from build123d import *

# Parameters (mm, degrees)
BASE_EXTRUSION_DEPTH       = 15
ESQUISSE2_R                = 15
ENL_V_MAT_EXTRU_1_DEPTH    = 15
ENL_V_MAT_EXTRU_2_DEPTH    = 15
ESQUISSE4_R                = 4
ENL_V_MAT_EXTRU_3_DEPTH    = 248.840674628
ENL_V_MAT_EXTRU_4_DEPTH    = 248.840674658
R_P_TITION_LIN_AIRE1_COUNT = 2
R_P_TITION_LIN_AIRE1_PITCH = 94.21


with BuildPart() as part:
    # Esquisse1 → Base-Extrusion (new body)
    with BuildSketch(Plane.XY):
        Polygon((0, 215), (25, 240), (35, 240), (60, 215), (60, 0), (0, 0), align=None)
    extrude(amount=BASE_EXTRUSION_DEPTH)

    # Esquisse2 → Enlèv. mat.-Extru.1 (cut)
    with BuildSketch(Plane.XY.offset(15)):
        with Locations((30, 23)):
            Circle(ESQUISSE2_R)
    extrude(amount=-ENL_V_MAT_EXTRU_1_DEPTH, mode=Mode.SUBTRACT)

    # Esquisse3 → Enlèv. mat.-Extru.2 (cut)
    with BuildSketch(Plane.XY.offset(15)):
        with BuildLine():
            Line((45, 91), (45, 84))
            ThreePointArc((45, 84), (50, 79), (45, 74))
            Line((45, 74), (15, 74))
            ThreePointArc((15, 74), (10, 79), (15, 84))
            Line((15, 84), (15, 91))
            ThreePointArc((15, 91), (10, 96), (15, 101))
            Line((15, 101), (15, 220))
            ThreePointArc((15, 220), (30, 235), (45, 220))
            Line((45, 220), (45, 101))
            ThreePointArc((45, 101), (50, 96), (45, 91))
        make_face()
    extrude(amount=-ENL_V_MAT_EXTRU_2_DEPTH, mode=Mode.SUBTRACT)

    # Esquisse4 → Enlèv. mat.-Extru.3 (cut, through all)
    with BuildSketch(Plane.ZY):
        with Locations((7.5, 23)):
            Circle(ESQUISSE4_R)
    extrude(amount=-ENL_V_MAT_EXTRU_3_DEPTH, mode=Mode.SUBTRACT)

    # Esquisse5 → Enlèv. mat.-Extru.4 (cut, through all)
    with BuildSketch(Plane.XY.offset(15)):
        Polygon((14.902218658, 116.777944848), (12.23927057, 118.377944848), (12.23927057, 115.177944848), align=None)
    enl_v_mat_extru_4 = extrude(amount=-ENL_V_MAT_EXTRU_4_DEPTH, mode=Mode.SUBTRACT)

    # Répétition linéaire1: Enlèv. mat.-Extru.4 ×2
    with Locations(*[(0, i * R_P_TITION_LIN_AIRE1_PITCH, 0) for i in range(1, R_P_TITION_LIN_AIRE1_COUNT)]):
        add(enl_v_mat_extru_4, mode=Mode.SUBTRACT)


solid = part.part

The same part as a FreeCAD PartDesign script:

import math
import FreeCAD as App
import Part
import Sketcher

V = App.Vector
Q = App.Units.Quantity

doc = App.newDocument("Part")
params = doc.addObject("Spreadsheet::Sheet", "Params")
for row, (alias, value) in enumerate([
    ("sketch1_width", "60 mm"),
    ("sketch1_width2", "10 mm"),
    ("sketch1_height", "215 mm"),
    ("pad1_length", "15 mm"),
    ("sketch2_diameter", "30 mm"),
    ("pocket1_length", "15 mm"),
    ("sketch3_radius", "5 mm"),
    ("sketch3_radius2", "15 mm"),
    ("sketch3_height", "7 mm"),
    ("sketch3_height2", "119 mm"),
    ("pocket2_length", "15 mm"),
    ("sketch4_diameter", "8 mm"),
    ("sketch5_height", "3.2 mm"),
    ("linearpattern_pitch", "94.21 mm"),
], start=1):
    params.set(f"A{row}", alias)
    params.set(f"B{row}", "=" + value)
    params.setAlias(f"B{row}", alias)

body = doc.addObject("PartDesign::Body", "Body")

sketch1 = body.newObject("Sketcher::SketchObject", "Sketch")
sketch1.AttachmentSupport = (doc.getObject("XY_Plane"), [""])
sketch1.MapMode = "FlatFace"
sketch1.addGeometry([
    Part.LineSegment(V(25, 240, 0), V(0, 215, 0)),
    Part.LineSegment(V(0, 215, 0), V(0, 0, 0)),
    Part.LineSegment(V(0, 0, 0), V(60, 0, 0)),
    Part.LineSegment(V(60, 0, 0), V(60, 215, 0)),
    Part.LineSegment(V(60, 215, 0), V(35, 240, 0)),
    Part.LineSegment(V(35, 240, 0), V(25, 240, 0)),
], False)
sketch1.addConstraint([
    Sketcher.Constraint("Coincident", 0, 2, 1, 1),
    Sketcher.Constraint("Coincident", 1, 2, 2, 1),
    Sketcher.Constraint("Coincident", 2, 2, 3, 1),
    Sketcher.Constraint("Coincident", 3, 2, 4, 1),
    Sketcher.Constraint("Coincident", 4, 2, 5, 1),
    Sketcher.Constraint("Coincident", 5, 2, 0, 1),
    Sketcher.Constraint("Vertical", 1),
    Sketcher.Constraint("Horizontal", 2),
    Sketcher.Constraint("Vertical", 3),
    Sketcher.Constraint("Horizontal", 5),
    Sketcher.Constraint("Coincident", 1, 2, -1, 1),
    Sketcher.Constraint("Perpendicular", 0, 4),
    Sketcher.Constraint("Horizontal", 0, 2, 3, 2),
    Sketcher.Constraint("Equal", 0, 4),
    Sketcher.Constraint("DistanceX", 2, 1, 2, 2, Q("60 mm")),
    Sketcher.Constraint("DistanceX", 5, 2, 5, 1, Q("10 mm")),
    Sketcher.Constraint("DistanceY", 1, 2, 1, 1, Q("215 mm")),
])
sketch1.setExpression("Constraints[14]", "Params.sketch1_width")
sketch1.setExpression("Constraints[15]", "Params.sketch1_width2")
sketch1.setExpression("Constraints[16]", "Params.sketch1_height")
pad1 = body.newObject("PartDesign::Pad", "Pad")
pad1.Profile = sketch1
pad1.setExpression("Length", "Params.pad1_length")

sketch2 = body.newObject("Sketcher::SketchObject", "Sketch001")
sketch2.AttachmentSupport = (doc.getObject("XY_Plane"), [""])
sketch2.MapMode = "FlatFace"
sketch2.AttachmentOffset = App.Placement(V(0, 0, 15), App.Rotation())
sketch2.addGeometry(Part.Circle(V(30, 23, 0), V(0, 0, 1), 15), False)
sketch2.addConstraint([
    Sketcher.Constraint("Diameter", 0, Q("30 mm")),
    Sketcher.Constraint("DistanceX", -1, 1, 0, 3, Q("30 mm")),
    Sketcher.Constraint("DistanceY", -1, 1, 0, 3, Q("23 mm")),
])
sketch2.setExpression("Constraints[0]", "Params.sketch2_diameter")
pocket1 = body.newObject("PartDesign::Pocket", "Pocket")
pocket1.Profile = sketch2
pocket1.setExpression("Length", "Params.pocket1_length")

sketch3 = body.newObject("Sketcher::SketchObject", "Sketch002")
sketch3.AttachmentSupport = (doc.getObject("XY_Plane"), [""])
sketch3.MapMode = "FlatFace"
sketch3.AttachmentOffset = App.Placement(V(0, 0, 15), App.Rotation())
sketch3.addGeometry([
    Part.LineSegment(V(45, 84, 0), V(45, 91, 0)),
    Part.ArcOfCircle(Part.Circle(V(45, 96, 0), V(0, 0, 1), 5), math.radians(-90), math.radians(90)),
    Part.LineSegment(V(45, 101, 0), V(45, 220, 0)),
    Part.ArcOfCircle(Part.Circle(V(30, 220, 0), V(0, 0, 1), 15), math.radians(0), math.radians(180)),
    Part.LineSegment(V(15, 220, 0), V(15, 101, 0)),
    Part.ArcOfCircle(Part.Circle(V(15, 96, 0), V(0, 0, 1), 5), math.radians(90), math.radians(270)),
    Part.LineSegment(V(15, 91, 0), V(15, 84, 0)),
    Part.ArcOfCircle(Part.Circle(V(15, 79, 0), V(0, 0, 1), 5), math.radians(90), math.radians(270)),
    Part.LineSegment(V(15, 74, 0), V(45, 74, 0)),
    Part.ArcOfCircle(Part.Circle(V(45, 79, 0), V(0, 0, 1), 5), math.radians(-90), math.radians(90)),
], False)
sketch3.addConstraint([
    Sketcher.Constraint("Coincident", 0, 2, 1, 1),
    Sketcher.Constraint("Coincident", 1, 2, 2, 1),
    Sketcher.Constraint("Tangent", 2, 2, 3, 1),
    Sketcher.Constraint("Tangent", 3, 2, 4, 1),
    Sketcher.Constraint("Coincident", 4, 2, 5, 1),
    Sketcher.Constraint("Coincident", 5, 2, 6, 1),
    Sketcher.Constraint("Coincident", 6, 2, 7, 1),
    Sketcher.Constraint("Tangent", 7, 2, 8, 1),
    Sketcher.Constraint("Tangent", 8, 2, 9, 1),
    Sketcher.Constraint("Coincident", 9, 2, 0, 1),
    Sketcher.Constraint("Vertical", 0),
    Sketcher.Constraint("Vertical", 2),
    Sketcher.Constraint("Vertical", 4),
    Sketcher.Constraint("Vertical", 6),
    Sketcher.Constraint("Horizontal", 8),
    Sketcher.Constraint("Equal", 1, 5),
    Sketcher.Constraint("Equal", 5, 7),
    Sketcher.Constraint("Equal", 7, 9),
    Sketcher.Constraint("Horizontal", 1, 3, 5, 3),
    Sketcher.Constraint("Vertical", 5, 3, 7, 3),
    Sketcher.Constraint("Vertical", 1, 3, 9, 3),
    Sketcher.Constraint("Vertical", 9, 3, 0, 2),
    Sketcher.Constraint("Vertical", 0, 2, 1, 2),
    Sketcher.Constraint("Vertical", 7, 3, 3, 2),
    Sketcher.Constraint("Vertical", 4, 2, 5, 2),
    Sketcher.Constraint("Radius", 1, Q("5 mm")),
    Sketcher.Constraint("Radius", 3, Q("15 mm")),
    Sketcher.Constraint("DistanceY", 0, 1, 0, 2, Q("7 mm")),
    Sketcher.Constraint("DistanceY", 2, 1, 2, 2, Q("119 mm")),
    Sketcher.Constraint("DistanceX", -1, 1, 1, 3, Q("45 mm")),
    Sketcher.Constraint("DistanceY", -1, 1, 1, 3, Q("96 mm")),
])
sketch3.setExpression("Constraints[25]", "Params.sketch3_radius")
sketch3.setExpression("Constraints[26]", "Params.sketch3_radius2")
sketch3.setExpression("Constraints[27]", "Params.sketch3_height")
sketch3.setExpression("Constraints[28]", "Params.sketch3_height2")
pocket2 = body.newObject("PartDesign::Pocket", "Pocket001")
pocket2.Profile = sketch3
pocket2.setExpression("Length", "Params.pocket2_length")

sketch4 = body.newObject("Sketcher::SketchObject", "Sketch003")
sketch4.AttachmentSupport = (doc.getObject("YZ_Plane"), [""])
sketch4.MapMode = "FlatFace"
sketch4.addGeometry(Part.Circle(V(23, 7.5, 0), V(0, 0, 1), 4), False)
sketch4.addConstraint([
    Sketcher.Constraint("Diameter", 0, Q("8 mm")),
    Sketcher.Constraint("DistanceX", -1, 1, 0, 3, Q("23 mm")),
    Sketcher.Constraint("DistanceY", -1, 1, 0, 3, Q("7.5 mm")),
])
sketch4.setExpression("Constraints[0]", "Params.sketch4_diameter")
pocket3 = body.newObject("PartDesign::Pocket", "Pocket002")
pocket3.Profile = sketch4
pocket3.Type = "ThroughAll"
pocket3.Reversed = True

sketch5 = body.newObject("Sketcher::SketchObject", "Sketch004")
sketch5.AttachmentSupport = (doc.getObject("XY_Plane"), [""])
sketch5.MapMode = "FlatFace"
sketch5.AttachmentOffset = App.Placement(V(0, 0, 15), App.Rotation())
sketch5.addGeometry([
    Part.LineSegment(V(14.902219, 116.777945, 0), V(12.239271, 118.377945, 0)),
    Part.LineSegment(V(12.239271, 118.377945, 0), V(12.239271, 115.177945, 0)),
    Part.LineSegment(V(12.239271, 115.177945, 0), V(14.902219, 116.777945, 0)),
], False)
sketch5.addConstraint([
    Sketcher.Constraint("Coincident", 0, 2, 1, 1),
    Sketcher.Constraint("Coincident", 1, 2, 2, 1),
    Sketcher.Constraint("Coincident", 2, 2, 0, 1),
    Sketcher.Constraint("Vertical", 1),
    Sketcher.Constraint("Equal", 0, 2),
    Sketcher.Constraint("DistanceY", 1, 2, 1, 1, Q("3.2 mm")),
    Sketcher.Constraint("DistanceX", -1, 1, 0, 2, Q("12.239271 mm")),
    Sketcher.Constraint("DistanceX", -1, 1, 2, 2, Q("14.902219 mm")),
    Sketcher.Constraint("DistanceY", -1, 1, 0, 2, Q("118.377945 mm")),
])
sketch5.setExpression("Constraints[5]", "Params.sketch5_height")
pocket4 = body.newObject("PartDesign::Pocket", "Pocket003")
pocket4.Profile = sketch5
pocket4.Type = "ThroughAll"
doc.recompute()

linearpattern = body.newObject("PartDesign::LinearPattern", "LinearPattern")
linearpattern.Originals = [pocket4]
linearpattern.Direction = (doc.getObject("Y_Axis"), [""])
linearpattern.Mode = "offset"
linearpattern.setExpression("Offset", "Params.linearpattern_pitch")
linearpattern.Occurrences = 2
body.Tip = linearpattern

doc.recompute()
